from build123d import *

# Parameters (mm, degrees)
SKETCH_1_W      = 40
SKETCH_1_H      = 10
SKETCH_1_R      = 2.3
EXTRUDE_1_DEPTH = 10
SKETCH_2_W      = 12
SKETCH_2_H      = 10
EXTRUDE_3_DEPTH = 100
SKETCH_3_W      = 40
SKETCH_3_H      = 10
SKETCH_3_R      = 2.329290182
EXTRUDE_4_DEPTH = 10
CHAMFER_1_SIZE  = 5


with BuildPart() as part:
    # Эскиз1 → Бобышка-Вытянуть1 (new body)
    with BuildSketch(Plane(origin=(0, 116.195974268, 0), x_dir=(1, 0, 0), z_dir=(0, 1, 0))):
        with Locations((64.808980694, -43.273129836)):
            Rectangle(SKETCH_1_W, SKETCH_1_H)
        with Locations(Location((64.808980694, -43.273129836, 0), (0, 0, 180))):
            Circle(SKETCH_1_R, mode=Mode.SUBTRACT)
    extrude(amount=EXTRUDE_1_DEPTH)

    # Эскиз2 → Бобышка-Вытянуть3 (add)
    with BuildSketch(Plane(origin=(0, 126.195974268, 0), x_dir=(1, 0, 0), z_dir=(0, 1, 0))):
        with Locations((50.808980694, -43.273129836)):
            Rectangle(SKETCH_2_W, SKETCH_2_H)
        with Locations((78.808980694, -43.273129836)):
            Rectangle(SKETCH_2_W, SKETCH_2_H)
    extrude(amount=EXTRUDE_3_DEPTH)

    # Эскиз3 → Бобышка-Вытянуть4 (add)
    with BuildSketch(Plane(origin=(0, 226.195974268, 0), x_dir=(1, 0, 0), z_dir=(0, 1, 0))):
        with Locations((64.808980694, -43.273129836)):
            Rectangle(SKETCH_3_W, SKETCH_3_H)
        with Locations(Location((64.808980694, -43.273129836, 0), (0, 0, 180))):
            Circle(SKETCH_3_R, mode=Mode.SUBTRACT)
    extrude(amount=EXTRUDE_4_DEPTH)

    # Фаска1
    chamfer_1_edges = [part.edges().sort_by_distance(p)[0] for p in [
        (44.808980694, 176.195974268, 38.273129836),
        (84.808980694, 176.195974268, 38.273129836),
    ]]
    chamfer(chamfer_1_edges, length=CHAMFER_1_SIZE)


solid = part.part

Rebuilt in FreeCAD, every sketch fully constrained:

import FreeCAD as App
import Part
import Sketcher
from FreeCAD import Vector


def edges_at(feature, points):
    """Names of the edges that pass closest to the given points."""
    edges = feature.Shape.Edges
    near = lambda p: min(range(len(edges)), key=lambda i: edges[i].distToShape(Part.Vertex(*p))[0])
    return sorted({f"Edge{near(p) + 1}" for p in points})

doc = App.newDocument("Part")
body = doc.addObject("PartDesign::Body", "Body")

sketch1 = body.newObject("Sketcher::SketchObject", "Sketch")
sketch1.AttachmentSupport = (doc.getObject("XZ_Plane"), [""])
sketch1.MapMode = "FlatFace"
sketch1.AttachmentOffset = App.Placement(Vector(0, 0, -116.195974), App.Rotation())
sketch1.addGeometry(Part.LineSegment(Vector(44.8, 38.3, 0), Vector(44.8, 48.3, 0)), False)
sketch1.addGeometry(Part.LineSegment(Vector(44.8, 48.3, 0), Vector(84.8, 48.3, 0)), False)
sketch1.addGeometry(Part.LineSegment(Vector(84.8, 48.3, 0), Vector(84.8, 38.3, 0)), False)
sketch1.addGeometry(Part.LineSegment(Vector(84.8, 38.3, 0), Vector(44.8, 38.3, 0)), False)
sketch1.addGeometry(Part.Circle(Vector(64.8, 43.3, 0), Vector(0, 0, 1), 2.3), False)
sketch1.addConstraint(Sketcher.Constraint("Coincident", 0, 2, 1, 1))
sketch1.addConstraint(Sketcher.Constraint("Coincident", 1, 2, 2, 1))
sketch1.addConstraint(Sketcher.Constraint("Coincident", 2, 2, 3, 1))
sketch1.addConstraint(Sketcher.Constraint("Coincident", 3, 2, 0, 1))
sketch1.addConstraint(Sketcher.Constraint("Vertical", 0))
sketch1.addConstraint(Sketcher.Constraint("Horizontal", 1))
sketch1.addConstraint(Sketcher.Constraint("Vertical", 2))
sketch1.addConstraint(Sketcher.Constraint("Horizontal", 3))
sketch1.addConstraint(Sketcher.Constraint("Diameter", 4, 4.6))
sketch1.addConstraint(Sketcher.Constraint("DistanceX", 1, 1, 1, 2, 40.0))
sketch1.addConstraint(Sketcher.Constraint("DistanceY", 0, 1, 0, 2, 10.0))
sketch1.addConstraint(Sketcher.Constraint("DistanceX", 0, 2, 4, 3, 20.0))
sketch1.addConstraint(Sketcher.Constraint("DistanceY", 4, 3, 0, 2, 5.0))
sketch1.addConstraint(Sketcher.Constraint("DistanceX", -1, 1, 4, 3, 64.808981))
sketch1.addConstraint(Sketcher.Constraint("DistanceY", -1, 1, 4, 3, 43.27313))
pad1 = body.newObject("PartDesign::Pad", "Pad")
pad1.Profile = sketch1
pad1.Length = 10
pad1.Reversed = True

sketch2 = body.newObject("Sketcher::SketchObject", "Sketch001")
sketch2.AttachmentSupport = (doc.getObject("XZ_Plane"), [""])
sketch2.MapMode = "FlatFace"
sketch2.AttachmentOffset = App.Placement(Vector(0, 0, -126.195974), App.Rotation())
sketch2.addGeometry(Part.LineSegment(Vector(45, 38, 0), Vector(45, 48, 0)), False)
sketch2.addGeometry(Part.LineSegment(Vector(45, 48, 0), Vector(57, 48, 0)), False)
sketch2.addGeometry(Part.LineSegment(Vector(57, 48, 0), Vector(57, 38, 0)), False)
sketch2.addGeometry(Part.LineSegment(Vector(57, 38, 0), Vector(45, 38, 0)), False)
sketch2.addGeometry(Part.LineSegment(Vector(73, 38, 0), Vector(73, 48, 0)), False)
sketch2.addGeometry(Part.LineSegment(Vector(73, 48, 0), Vector(85, 48, 0)), False)
sketch2.addGeometry(Part.LineSegment(Vector(85, 48, 0), Vector(85, 38, 0)), False)
sketch2.addGeometry(Part.LineSegment(Vector(85, 38, 0), Vector(73, 38, 0)), False)
sketch2.addConstraint(Sketcher.Constraint("Coincident", 0, 2, 1, 1))
sketch2.addConstraint(Sketcher.Constraint("Coincident", 1, 2, 2, 1))
sketch2.addConstraint(Sketcher.Constraint("Coincident", 2, 2, 3, 1))
sketch2.addConstraint(Sketcher.Constraint("Coincident", 3, 2, 0, 1))
sketch2.addConstraint(Sketcher.Constraint("Coincident", 4, 2, 5, 1))
sketch2.addConstraint(Sketcher.Constraint("Coincident", 5, 2, 6, 1))
sketch2.addConstraint(Sketcher.Constraint("Coincident", 6, 2, 7, 1))
sketch2.addConstraint(Sketcher.Constraint("Coincident", 7, 2, 4, 1))
sketch2.addConstraint(Sketcher.Constraint("Vertical", 0))
sketch2.addConstraint(Sketcher.Constraint("Horizontal", 1))
sketch2.addConstraint(Sketcher.Constraint("Vertical", 2))
sketch2.addConstraint(Sketcher.Constraint("Horizontal", 3))
sketch2.addConstraint(Sketcher.Constraint("Vertical", 4))
sketch2.addConstraint(Sketcher.Constraint("Horizontal", 5))
sketch2.addConstraint(Sketcher.Constraint("Vertical", 6))
sketch2.addConstraint(Sketcher.Constraint("Horizontal", 7))
sketch2.addConstraint(Sketcher.Constraint("Horizontal", 1, 2, 4, 2))
sketch2.addConstraint(Sketcher.Constraint("Horizontal", 3, 2, 6, 2))
sketch2.addConstraint(Sketcher.Constraint("Equal", 3, 5))
sketch2.addConstraint(Sketcher.Constraint("DistanceX", 1, 1, 1, 2, 12.0))
sketch2.addConstraint(Sketcher.Constraint("DistanceY", 0, 1, 0, 2, 10.0))
sketch2.addConstraint(Sketcher.Constraint("DistanceX", 1, 2, 4, 2, 16.0))
sketch2.addConstraint(Sketcher.Constraint("DistanceX", -1, 1, 0, 2, 44.808981))
sketch2.addConstraint(Sketcher.Constraint("DistanceY", -1, 1, 0, 2, 48.27313))
pad2 = body.newObject("PartDesign::Pad", "Pad001")
pad2.Profile = sketch2
pad2.Length = 100
pad2.Reversed = True

sketch3 = body.newObject("Sketcher::SketchObject", "Sketch002")
sketch3.AttachmentSupport = (doc.getObject("XZ_Plane"), [""])
sketch3.MapMode = "FlatFace"
sketch3.AttachmentOffset = App.Placement(Vector(0, 0, -226.195974), App.Rotation())
sketch3.addGeometry(Part.LineSegment(Vector(44.8, 38.3, 0), Vector(44.8, 48.3, 0)), False)
sketch3.addGeometry(Part.LineSegment(Vector(44.8, 48.3, 0), Vector(84.8, 48.3, 0)), False)
sketch3.addGeometry(Part.LineSegment(Vector(84.8, 48.3, 0), Vector(84.8, 38.3, 0)), False)
sketch3.addGeometry(Part.LineSegment(Vector(84.8, 38.3, 0), Vector(44.8, 38.3, 0)), False)
sketch3.addGeometry(Part.Circle(Vector(64.8, 43.3, 0), Vector(0, 0, 1), 2.3), False)
sketch3.addConstraint(Sketcher.Constraint("Coincident", 0, 2, 1, 1))
sketch3.addConstraint(Sketcher.Constraint("Coincident", 1, 2, 2, 1))
sketch3.addConstraint(Sketcher.Constraint("Coincident", 2, 2, 3, 1))
sketch3.addConstraint(Sketcher.Constraint("Coincident", 3, 2, 0, 1))
sketch3.addConstraint(Sketcher.Constraint("Vertical", 0))
sketch3.addConstraint(Sketcher.Constraint("Horizontal", 1))
sketch3.addConstraint(Sketcher.Constraint("Vertical", 2))
sketch3.addConstraint(Sketcher.Constraint("Horizontal", 3))
sketch3.addConstraint(Sketcher.Constraint("DistanceX", 1, 1, 1, 2, 40.0))
sketch3.addConstraint(Sketcher.Constraint("DistanceY", 0, 1, 0, 2, 10.0))
sketch3.addConstraint(Sketcher.Constraint("DistanceX", 0, 2, 4, 3, 20.0))
sketch3.addConstraint(Sketcher.Constraint("DistanceY", 4, 3, 0, 2, 5.0))
sketch3.addConstraint(Sketcher.Constraint("Diameter", 4, 4.65858))
sketch3.addConstraint(Sketcher.Constraint("DistanceX", -1, 1, 4, 3, 64.808981))
sketch3.addConstraint(Sketcher.Constraint("DistanceY", -1, 1, 4, 3, 43.27313))
pad3 = body.newObject("PartDesign::Pad", "Pad002")
pad3.Profile = sketch3
pad3.Length = 10
pad3.Reversed = True
doc.recompute()

chamfer = body.newObject("PartDesign::Chamfer", "Chamfer")
chamfer.Base = (pad3, edges_at(pad3, [(44.809, 176.196, 38.273), (84.809, 176.196, 38.273)]))
chamfer.Size = 5

doc.recompute()
